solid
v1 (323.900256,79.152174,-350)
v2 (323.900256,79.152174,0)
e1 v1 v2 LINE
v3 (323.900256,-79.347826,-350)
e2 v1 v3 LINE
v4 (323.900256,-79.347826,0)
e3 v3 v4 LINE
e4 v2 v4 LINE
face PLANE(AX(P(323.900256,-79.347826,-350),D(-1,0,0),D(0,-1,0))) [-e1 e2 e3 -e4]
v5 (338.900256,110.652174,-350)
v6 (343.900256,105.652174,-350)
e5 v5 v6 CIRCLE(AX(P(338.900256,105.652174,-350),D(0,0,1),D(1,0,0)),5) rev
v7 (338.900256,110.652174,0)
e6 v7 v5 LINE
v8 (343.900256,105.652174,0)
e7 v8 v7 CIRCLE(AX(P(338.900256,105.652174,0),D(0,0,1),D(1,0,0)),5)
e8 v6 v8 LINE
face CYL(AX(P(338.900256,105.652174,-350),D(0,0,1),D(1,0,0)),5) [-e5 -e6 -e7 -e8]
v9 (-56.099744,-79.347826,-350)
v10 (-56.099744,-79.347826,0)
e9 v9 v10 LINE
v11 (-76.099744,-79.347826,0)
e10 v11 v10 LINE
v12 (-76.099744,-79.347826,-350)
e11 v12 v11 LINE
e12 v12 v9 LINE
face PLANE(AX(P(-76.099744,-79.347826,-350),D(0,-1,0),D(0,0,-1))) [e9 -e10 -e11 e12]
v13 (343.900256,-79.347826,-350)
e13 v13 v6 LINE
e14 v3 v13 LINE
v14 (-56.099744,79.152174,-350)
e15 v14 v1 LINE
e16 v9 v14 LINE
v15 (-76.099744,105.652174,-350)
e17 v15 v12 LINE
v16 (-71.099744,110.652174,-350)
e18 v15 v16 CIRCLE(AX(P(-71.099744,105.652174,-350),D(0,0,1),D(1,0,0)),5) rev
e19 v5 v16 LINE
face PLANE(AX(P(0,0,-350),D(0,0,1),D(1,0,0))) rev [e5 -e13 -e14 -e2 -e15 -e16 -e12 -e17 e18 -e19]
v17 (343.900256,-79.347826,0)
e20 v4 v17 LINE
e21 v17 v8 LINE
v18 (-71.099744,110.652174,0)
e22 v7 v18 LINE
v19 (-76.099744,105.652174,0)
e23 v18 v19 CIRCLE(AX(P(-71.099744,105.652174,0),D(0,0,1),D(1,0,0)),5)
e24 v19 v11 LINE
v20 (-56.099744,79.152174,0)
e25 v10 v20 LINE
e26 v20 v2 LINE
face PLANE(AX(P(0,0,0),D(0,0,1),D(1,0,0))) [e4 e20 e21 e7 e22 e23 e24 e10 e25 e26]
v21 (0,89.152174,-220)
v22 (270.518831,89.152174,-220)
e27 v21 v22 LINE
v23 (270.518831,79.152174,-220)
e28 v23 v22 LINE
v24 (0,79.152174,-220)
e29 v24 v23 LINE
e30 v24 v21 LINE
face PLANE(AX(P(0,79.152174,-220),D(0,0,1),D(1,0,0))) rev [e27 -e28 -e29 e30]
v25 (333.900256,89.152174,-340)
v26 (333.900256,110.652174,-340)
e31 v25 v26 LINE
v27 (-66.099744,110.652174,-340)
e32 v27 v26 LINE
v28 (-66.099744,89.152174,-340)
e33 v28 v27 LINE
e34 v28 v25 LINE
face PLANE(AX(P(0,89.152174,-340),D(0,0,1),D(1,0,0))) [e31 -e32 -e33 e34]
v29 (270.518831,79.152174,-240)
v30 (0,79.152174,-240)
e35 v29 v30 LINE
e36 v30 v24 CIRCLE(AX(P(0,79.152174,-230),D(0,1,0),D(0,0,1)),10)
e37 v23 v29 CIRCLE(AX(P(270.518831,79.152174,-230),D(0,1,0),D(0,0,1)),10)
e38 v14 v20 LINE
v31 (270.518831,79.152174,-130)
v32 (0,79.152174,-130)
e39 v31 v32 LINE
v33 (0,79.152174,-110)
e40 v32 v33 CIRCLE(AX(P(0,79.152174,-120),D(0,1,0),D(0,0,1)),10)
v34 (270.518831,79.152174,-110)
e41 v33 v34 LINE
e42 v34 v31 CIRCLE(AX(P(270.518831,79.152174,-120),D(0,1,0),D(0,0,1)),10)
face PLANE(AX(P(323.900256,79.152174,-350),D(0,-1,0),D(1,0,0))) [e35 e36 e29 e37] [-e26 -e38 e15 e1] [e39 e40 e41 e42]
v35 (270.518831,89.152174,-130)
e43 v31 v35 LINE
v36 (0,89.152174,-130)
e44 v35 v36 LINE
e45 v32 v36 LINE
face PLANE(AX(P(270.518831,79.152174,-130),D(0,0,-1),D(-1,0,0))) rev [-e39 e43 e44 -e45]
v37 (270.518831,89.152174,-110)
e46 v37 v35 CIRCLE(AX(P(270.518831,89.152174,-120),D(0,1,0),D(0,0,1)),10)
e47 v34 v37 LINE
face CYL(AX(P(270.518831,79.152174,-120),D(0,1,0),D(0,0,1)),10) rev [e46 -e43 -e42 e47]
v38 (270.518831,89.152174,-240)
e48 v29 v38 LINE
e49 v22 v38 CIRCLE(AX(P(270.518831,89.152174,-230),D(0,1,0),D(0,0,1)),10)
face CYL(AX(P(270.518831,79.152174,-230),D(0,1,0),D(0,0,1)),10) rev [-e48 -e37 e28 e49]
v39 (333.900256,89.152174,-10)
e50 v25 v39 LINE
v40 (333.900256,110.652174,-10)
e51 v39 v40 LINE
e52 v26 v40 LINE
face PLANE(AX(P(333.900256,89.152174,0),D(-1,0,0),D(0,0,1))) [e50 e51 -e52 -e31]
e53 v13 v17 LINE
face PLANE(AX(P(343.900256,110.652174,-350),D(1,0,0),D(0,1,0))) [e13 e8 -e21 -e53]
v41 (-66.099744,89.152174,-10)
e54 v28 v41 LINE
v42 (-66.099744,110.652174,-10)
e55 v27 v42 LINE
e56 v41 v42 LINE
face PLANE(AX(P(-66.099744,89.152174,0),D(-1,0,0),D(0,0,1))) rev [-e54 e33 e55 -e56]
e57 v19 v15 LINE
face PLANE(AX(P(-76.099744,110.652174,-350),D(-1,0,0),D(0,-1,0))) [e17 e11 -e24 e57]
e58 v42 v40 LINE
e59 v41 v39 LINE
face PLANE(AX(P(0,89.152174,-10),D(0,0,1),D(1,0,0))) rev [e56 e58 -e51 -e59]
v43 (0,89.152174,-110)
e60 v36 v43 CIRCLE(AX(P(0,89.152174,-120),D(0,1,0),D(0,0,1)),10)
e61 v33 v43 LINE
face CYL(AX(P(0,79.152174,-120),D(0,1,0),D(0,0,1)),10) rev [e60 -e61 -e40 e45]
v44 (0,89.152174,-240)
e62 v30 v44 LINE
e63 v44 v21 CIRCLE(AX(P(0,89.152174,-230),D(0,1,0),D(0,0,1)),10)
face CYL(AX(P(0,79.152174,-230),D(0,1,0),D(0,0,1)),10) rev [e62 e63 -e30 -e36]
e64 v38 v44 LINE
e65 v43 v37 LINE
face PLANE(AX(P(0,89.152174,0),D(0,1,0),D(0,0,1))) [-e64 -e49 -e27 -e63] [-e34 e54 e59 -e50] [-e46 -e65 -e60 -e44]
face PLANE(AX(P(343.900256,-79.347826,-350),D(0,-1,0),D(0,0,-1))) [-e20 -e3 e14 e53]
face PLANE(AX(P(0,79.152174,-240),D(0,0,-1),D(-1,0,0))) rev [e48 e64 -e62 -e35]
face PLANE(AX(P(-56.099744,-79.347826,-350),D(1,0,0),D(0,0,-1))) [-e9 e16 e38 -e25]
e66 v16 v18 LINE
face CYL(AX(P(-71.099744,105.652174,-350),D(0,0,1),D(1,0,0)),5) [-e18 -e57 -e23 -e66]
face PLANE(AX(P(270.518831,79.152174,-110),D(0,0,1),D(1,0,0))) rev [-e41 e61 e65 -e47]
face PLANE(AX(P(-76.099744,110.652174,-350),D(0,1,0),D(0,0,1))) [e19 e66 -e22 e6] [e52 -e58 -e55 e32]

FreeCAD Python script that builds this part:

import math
import FreeCAD as App
import Part
import Sketcher

V = App.Vector


def edges_at(feature, points):
    """Names of the edges that pass closest to the given points."""
    edges = feature.Shape.Edges
    near = lambda p: min(range(len(edges)), key=lambda i: edges[i].distToShape(Part.Vertex(*p))[0])
    return sorted({f"Edge{near(p) + 1}" for p in points})

doc = App.newDocument("Part")
body = doc.addObject("PartDesign::Body", "Body")

sketch1 = body.newObject("Sketcher::SketchObject", "Sketch")
sketch1.AttachmentSupport = (doc.getObject("XY_Plane"), [""])
sketch1.MapMode = "FlatFace"
sketch1.addGeometry([
    Part.LineSegment(V(344, 111, 0), V(-76, 111, 0)),
    Part.LineSegment(V(-76, 111, 0), V(-76, -79, 0)),
    Part.LineSegment(V(-76, -79, 0), V(-56, -79, 0)),
    Part.LineSegment(V(-56, -79, 0), V(-56, 79, 0)),
    Part.LineSegment(V(-56, 79, 0), V(324, 79, 0)),
    Part.LineSegment(V(324, 79, 0), V(324, -79, 0)),
    Part.LineSegment(V(324, -79, 0), V(344, -79, 0)),
    Part.LineSegment(V(344, -79, 0), V(344, 111, 0)),
], False)
sketch1.addConstraint([
    Sketcher.Constraint("Coincident", 0, 2, 1, 1),
    Sketcher.Constraint("Coincident", 1, 2, 2, 1),
    Sketcher.Constraint("Coincident", 2, 2, 3, 1),
    Sketcher.Constraint("Coincident", 3, 2, 4, 1),
    Sketcher.Constraint("Coincident", 4, 2, 5, 1),
    Sketcher.Constraint("Coincident", 5, 2, 6, 1),
    Sketcher.Constraint("Coincident", 6, 2, 7, 1),
    Sketcher.Constraint("Coincident", 7, 2, 0, 1),
    Sketcher.Constraint("Horizontal", 0),
    Sketcher.Constraint("Vertical", 1),
    Sketcher.Constraint("Horizontal", 2),
    Sketcher.Constraint("Vertical", 3),
    Sketcher.Constraint("Horizontal", 4),
    Sketcher.Constraint("Vertical", 5),
    Sketcher.Constraint("Horizontal", 6),
    Sketcher.Constraint("Vertical", 7),
    Sketcher.Constraint("Horizontal", 2, 2, 5, 2),
    Sketcher.Constraint("Equal", 2, 6),
    Sketcher.Constraint("DistanceX", 0, 2, 0, 1, 420.0),
    Sketcher.Constraint("DistanceX", 2, 1, 2, 2, 20.0),
    Sketcher.Constraint("DistanceY", 1, 2, 1, 1, 190.0),
    Sketcher.Constraint("DistanceY", 3, 1, 3, 2, 158.5),
    Sketcher.Constraint("DistanceX", 0, 2, -1, 1, 76.099744),
    Sketcher.Constraint("DistanceY", -1, 1, 0, 2, 110.652174),
])
pad1 = body.newObject("PartDesign::Pad", "Pad")
pad1.Profile = sketch1
pad1.Length = 350
pad1.Reversed = True

sketch2 = body.newObject("Sketcher::SketchObject", "Sketch001")
sketch2.AttachmentSupport = (doc.getObject("XZ_Plane"), [""])
sketch2.MapMode = "FlatFace"
sketch2.AttachmentOffset = App.Placement(V(0, 0, -110.652174), App.Rotation())
sketch2.addGeometry([
    Part.LineSegment(V(-66, -340, 0), V(-66, -10, 0)),
    Part.LineSegment(V(-66, -10, 0), V(334, -10, 0)),
    Part.LineSegment(V(334, -10, 0), V(334, -340, 0)),
    Part.LineSegment(V(334, -340, 0), V(-66, -340, 0)),
], False)
sketch2.addConstraint([
    Sketcher.Constraint("Coincident", 0, 2, 1, 1),
    Sketcher.Constraint("Coincident", 1, 2, 2, 1),
    Sketcher.Constraint("Coincident", 2, 2, 3, 1),
    Sketcher.Constraint("Coincident", 3, 2, 0, 1),
    Sketcher.Constraint("Vertical", 0),
    Sketcher.Constraint("Horizontal", 1),
    Sketcher.Constraint("Vertical", 2),
    Sketcher.Constraint("Horizontal", 3),
    Sketcher.Constraint("DistanceX", 1, 1, 1, 2, 400.0),
    Sketcher.Constraint("DistanceY", 0, 1, 0, 2, 330.0),
    Sketcher.Constraint("DistanceY", 0, 2, -1, 1, 10.0),
    Sketcher.Constraint("DistanceX", 0, 2, -1, 1, 66.099744),
])
pocket1 = body.newObject("PartDesign::Pocket", "Pocket")
pocket1.Profile = sketch2
pocket1.Length = 21.5
pocket1.Reversed = True

sketch3 = body.newObject("Sketcher::SketchObject", "Sketch002")
sketch3.AttachmentSupport = (doc.getObject("XZ_Plane"), [""])
sketch3.MapMode = "FlatFace"
sketch3.AttachmentOffset = App.Placement(V(0, 0, -89.152174), App.Rotation())
sketch3.addGeometry([
    Part.LineSegment(V(-31, -175, 0), V(-31, -45, 0)),
    Part.LineSegment(V(-31, -45, 0), V(99, -45, 0)),
    Part.LineSegment(V(99, -45, 0), V(99, -175, 0)),
    Part.LineSegment(V(99, -175, 0), V(-31, -175, 0)),
    Part.LineSegment(V(89, -248, 0), V(-21, -248, 0)),
    Part.ArcOfCircle(Part.Circle(V(-21, -238, 0), V(0, 0, 1), 10), math.radians(90), math.radians(270)),
    Part.LineSegment(V(-21, -228, 0), V(89, -228, 0)),
    Part.ArcOfCircle(Part.Circle(V(89, -238, 0), V(0, 0, 1), 10), math.radians(-90), math.radians(90)),
    Part.LineSegment(V(89, -315, 0), V(-21, -315, 0)),
    Part.ArcOfCircle(Part.Circle(V(-21, -305, 0), V(0, 0, 1), 10), math.radians(90), math.radians(270)),
    Part.LineSegment(V(-21, -295, 0), V(89, -295, 0)),
    Part.ArcOfCircle(Part.Circle(V(89, -305, 0), V(0, 0, 1), 10), math.radians(-90), math.radians(90)),
], False)
sketch3.addConstraint([
    Sketcher.Constraint("Coincident", 0, 2, 1, 1),
    Sketcher.Constraint("Coincident", 1, 2, 2, 1),
    Sketcher.Constraint("Coincident", 2, 2, 3, 1),
    Sketcher.Constraint("Coincident", 3, 2, 0, 1),
    Sketcher.Constraint("Tangent", 4, 2, 5, 2),
    Sketcher.Constraint("Tangent", 5, 1, 6, 1),
    Sketcher.Constraint("Tangent", 6, 2, 7, 2),
    Sketcher.Constraint("Tangent", 7, 1, 4, 1),
    Sketcher.Constraint("Tangent", 8, 2, 9, 2),
    Sketcher.Constraint("Tangent", 9, 1, 10, 1),
    Sketcher.Constraint("Tangent", 10, 2, 11, 2),
    Sketcher.Constraint("Tangent", 11, 1, 8, 1),
    Sketcher.Constraint("Vertical", 0),
    Sketcher.Constraint("Horizontal", 1),
    Sketcher.Constraint("Vertical", 2),
    Sketcher.Constraint("Horizontal", 3),
    Sketcher.Constraint("Horizontal", 4),
    Sketcher.Constraint("Horizontal", 6),
    Sketcher.Constraint("Horizontal", 8),
    Sketcher.Constraint("Horizontal", 10),
    Sketcher.Constraint("Equal", 7, 9),
    Sketcher.Constraint("Vertical", 5, 3, 9, 3),
    Sketcher.Constraint("Vertical", 7, 3, 11, 3),
    Sketcher.Constraint("Equal", 3, 0),
    Sketcher.Constraint("Radius", 5, 10.0),
    Sketcher.Constraint("DistanceX", 1, 1, 1, 2, 130.0),
    Sketcher.Constraint("DistanceX", 4, 2, 4, 1, 110.0),
    Sketcher.Constraint("DistanceY", 0, 2, -1, 1, 45.0),
    Sketcher.Constraint("DistanceX", 0, 2, 5, 3, 10.0),
    Sketcher.Constraint("DistanceY", 5, 3, -1, 1, 237.552781),
    Sketcher.Constraint("DistanceY", 9, 3, -1, 1, 305.266551),
    Sketcher.Constraint("DistanceX", 5, 3, -1, 1, 21.099744),
])
pocket2 = body.newObject("PartDesign::Pocket", "Pocket001")
pocket2.Profile = sketch3
pocket2.Length = 30
pocket2.Reversed = True
doc.recompute()

fillet = body.newObject("PartDesign::Fillet", "Fillet")
fillet.Base = (pocket2, edges_at(pocket2, [(-76.1, 110.652, -175), (343.9, 110.652, -175)]))
fillet.Radius = 5

sketch4 = body.newObject("Sketcher::SketchObject", "Sketch003")
sketch4.AttachmentSupport = (doc.getObject("XY_Plane"), [""])
sketch4.MapMode = "FlatFace"
sketch4.AttachmentOffset = App.Placement(V(0, 0, -175), App.Rotation())
sketch4.addGeometry([
    Part.LineSegment(V(-31, 89, 0), V(-31, 79, 0)),
    Part.LineSegment(V(-31, 79, 0), V(99, 79, 0)),
    Part.LineSegment(V(99, 79, 0), V(99, 89, 0)),
    Part.LineSegment(V(99, 89, 0), V(-31, 89, 0)),
], False)
sketch4.addConstraint([
    Sketcher.Constraint("Coincident", 0, 2, 1, 1),
    Sketcher.Constraint("Coincident", 1, 2, 2, 1),
    Sketcher.Constraint("Coincident", 2, 2, 3, 1),
    Sketcher.Constraint("Coincident", 3, 2, 0, 1),
    Sketcher.Constraint("Vertical", 0),
    Sketcher.Constraint("Horizontal", 1),
    Sketcher.Constraint("Vertical", 2),
    Sketcher.Constraint("Horizontal", 3),
    Sketcher.Constraint("DistanceX", 1, 1, 1, 2, 130.0),
    Sketcher.Constraint("DistanceY", 0, 2, 0, 1, 10.0),
    Sketcher.Constraint("DistanceX", 0, 2, -1, 1, 31.099744),
    Sketcher.Constraint("DistanceY", -1, 1, 0, 2, 79.152174),
])
pocket3 = body.newObject("PartDesign::Pocket", "Pocket002")
pocket3.Profile = sketch4
pocket3.Length = 25

sketch5 = body.newObject("Sketcher::SketchObject", "Sketch004")
sketch5.AttachmentSupport = (doc.getObject("XY_Plane"), [""])
sketch5.MapMode = "FlatFace"
sketch5.AttachmentOffset = App.Placement(V(0, 0, -45), App.Rotation())
sketch5.addGeometry([
    Part.LineSegment(V(99, 89, 0), V(99, 79, 0)),
    Part.LineSegment(V(99, 79, 0), V(-31, 79, 0)),
    Part.LineSegment(V(-31, 79, 0), V(-31, 89, 0)),
    Part.LineSegment(V(-31, 89, 0), V(99, 89, 0)),
], False)
sketch5.addConstraint([
    Sketcher.Constraint("Coincident", 0, 2, 1, 1),
    Sketcher.Constraint("Coincident", 1, 2, 2, 1),
    Sketcher.Constraint("Coincident", 2, 2, 3, 1),
    Sketcher.Constraint("Coincident", 3, 2, 0, 1),
    Sketcher.Constraint("Vertical", 0),
    Sketcher.Constraint("Horizontal", 1),
    Sketcher.Constraint("Vertical", 2),
    Sketcher.Constraint("Horizontal", 3),
    Sketcher.Constraint("DistanceX", 1, 2, 1, 1, 130.0),
    Sketcher.Constraint("DistanceY", 0, 2, 0, 1, 10.0),
    Sketcher.Constraint("DistanceX", -1, 1, 0, 2, 98.900256),
    Sketcher.Constraint("DistanceY", -1, 1, 0, 2, 79.152174),
])
pad2 = body.newObject("PartDesign::Pad", "Pad001")
pad2.Profile = sketch5
pad2.Length = 25
pad2.Reversed = True

sketch6 = body.newObject("Sketcher::SketchObject", "Sketch005")
sketch6.AttachmentSupport = (doc.getObject("XZ_Plane"), [""])
sketch6.MapMode = "FlatFace"
sketch6.AttachmentOffset = App.Placement(V(0, 0, -89.152174), App.Rotation())
sketch6.addGeometry([
    Part.LineSegment(V(-31, -200, 0), V(-31, -70, 0)),
    Part.LineSegment(V(-31, -70, 0), V(99, -70, 0)),
    Part.LineSegment(V(99, -70, 0), V(99, -200, 0)),
    Part.LineSegment(V(99, -200, 0), V(-31, -200, 0)),
], False)
sketch6.addConstraint([
    Sketcher.Constraint("Coincident", 0, 2, 1, 1),
    Sketcher.Constraint("Coincident", 1, 2, 2, 1),
    Sketcher.Constraint("Coincident", 2, 2, 3, 1),
    Sketcher.Constraint("Coincident", 3, 2, 0, 1),
    Sketcher.Constraint("Vertical", 0),
    Sketcher.Constraint("Horizontal", 1),
    Sketcher.Constraint("Vertical", 2),
    Sketcher.Constraint("Horizontal", 3),
    Sketcher.Constraint("Equal", 3, 0),
    Sketcher.Constraint("DistanceX", 1, 1, 1, 2, 130.0),
    Sketcher.Constraint("DistanceY", 0, 2, -1, 1, 70.0),
    Sketcher.Constraint("DistanceX", 0, 2, -1, 1, 31.099744),
])
pad3 = body.newObject("PartDesign::Pad", "Pad002")
pad3.Profile = sketch6
pad3.Length = 10

sketch7 = body.newObject("Sketcher::SketchObject", "Sketch006")
sketch7.AttachmentSupport = (doc.getObject("XZ_Plane"), [""])
sketch7.MapMode = "FlatFace"
sketch7.AttachmentOffset = App.Placement(V(0, 0, -89.152174), App.Rotation())
sketch7.addGeometry([
    Part.ArcOfCircle(Part.Circle(V(-21, -305, 0), V(0, 0, 1), 10), math.radians(90), math.radians(270)),
    Part.LineSegment(V(-21, -295, 0), V(89, -295, 0)),
    Part.ArcOfCircle(Part.Circle(V(89, -305, 0), V(0, 0, 1), 10), math.radians(-90), math.radians(90)),
    Part.LineSegment(V(89, -315, 0), V(-21, -315, 0)),
    Part.ArcOfCircle(Part.Circle(V(-21, -238, 0), V(0, 0, 1), 10), math.radians(90), math.radians(270)),
    Part.LineSegment(V(-21, -228, 0), V(89, -228, 0)),
    Part.ArcOfCircle(Part.Circle(V(89, -238, 0), V(0, 0, 1), 10), math.radians(-90), math.radians(90)),
    Part.LineSegment(V(89, -248, 0), V(-21, -248, 0)),
], False)
sketch7.addConstraint([
    Sketcher.Constraint("Tangent", 0, 1, 1, 1),
    Sketcher.Constraint("Tangent", 1, 2, 2, 2),
    Sketcher.Constraint("Tangent", 2, 1, 3, 1),
    Sketcher.Constraint("Tangent", 3, 2, 0, 2),
    Sketcher.Constraint("Tangent", 4, 1, 5, 1),
    Sketcher.Constraint("Tangent", 5, 2, 6, 2),
    Sketcher.Constraint("Tangent", 6, 1, 7, 1),
    Sketcher.Constraint("Tangent", 7, 2, 4, 2),
    Sketcher.Constraint("Horizontal", 1),
    Sketcher.Constraint("Horizontal", 3),
    Sketcher.Constraint("Horizontal", 5),
    Sketcher.Constraint("Horizontal", 7),
    Sketcher.Constraint("Equal", 2, 4),
    Sketcher.Constraint("Vertical", 0, 3, 4, 3),
    Sketcher.Constraint("Vertical", 2, 3, 6, 3),
    Sketcher.Constraint("Radius", 0, 10.0),
    Sketcher.Constraint("DistanceX", 1, 1, 1, 2, 110.0),
    Sketcher.Constraint("DistanceY", 0, 3, -1, 1, 305.266551),
    Sketcher.Constraint("DistanceY", 4, 3, -1, 1, 237.552781),
    Sketcher.Constraint("DistanceX", 0, 3, -1, 1, 21.099744),
])
pad4 = body.newObject("PartDesign::Pad", "Pad003")
pad4.Profile = sketch7
pad4.Length = 10

sketch8 = body.newObject("Sketcher::SketchObject", "Sketch007")
sketch8.AttachmentSupport = (doc.getObject("XZ_Plane"), [""])
sketch8.MapMode = "FlatFace"
sketch8.AttachmentOffset = App.Placement(V(0, 0, -89.152174), App.Rotation())
sketch8.addGeometry([
    Part.LineSegment(V(271, -240, 0), V(0, -240, 0)),
    Part.ArcOfCircle(Part.Circle(V(0, -230, 0), V(0, 0, 1), 10), math.radians(90), math.radians(270)),
    Part.LineSegment(V(0, -220, 0), V(271, -220, 0)),
    Part.ArcOfCircle(Part.Circle(V(271, -230, 0), V(0, 0, 1), 10), math.radians(-90), math.radians(90)),
    Part.LineSegment(V(0, -110, 0), V(271, -110, 0)),
    Part.ArcOfCircle(Part.Circle(V(271, -120, 0), V(0, 0, 1), 10), math.radians(-90), math.radians(90)),
    Part.LineSegment(V(271, -130, 0), V(0, -130, 0)),
    Part.ArcOfCircle(Part.Circle(V(0, -120, 0), V(0, 0, 1), 10), math.radians(90), math.radians(270)),
], False)
sketch8.addConstraint([
    Sketcher.Constraint("Tangent", 0, 2, 1, 2),
    Sketcher.Constraint("Tangent", 1, 1, 2, 1),
    Sketcher.Constraint("Tangent", 2, 2, 3, 2),
    Sketcher.Constraint("Tangent", 3, 1, 0, 1),
    Sketcher.Constraint("Tangent", 4, 2, 5, 2),
    Sketcher.Constraint("Tangent", 5, 1, 6, 1),
    Sketcher.Constraint("Tangent", 6, 2, 7, 2),
    Sketcher.Constraint("Tangent", 7, 1, 4, 1),
    Sketcher.Constraint("Horizontal", 0),
    Sketcher.Constraint("Horizontal", 2),
    Sketcher.Constraint("Horizontal", 4),
    Sketcher.Constraint("Horizontal", 6),
    Sketcher.Constraint("Equal", 3, 5),
    Sketcher.Constraint("PointOnObject", 1, 3, -2),
    Sketcher.Constraint("PointOnObject", 7, 3, -2),
    Sketcher.Constraint("Vertical", 3, 3, 5, 3),
    Sketcher.Constraint("Radius", 1, 10.0),
    Sketcher.Constraint("DistanceY", 1, 3, -1, 1, 230.0),
    Sketcher.Constraint("DistanceY", 5, 3, -1, 1, 120.0),
    Sketcher.Constraint("DistanceX", 0, 2, 0, 1, 270.518831),
])
pocket4 = body.newObject("PartDesign::Pocket", "Pocket003")
pocket4.Profile = sketch8
pocket4.Length = 10
pocket4.Reversed = True

doc.recompute()
